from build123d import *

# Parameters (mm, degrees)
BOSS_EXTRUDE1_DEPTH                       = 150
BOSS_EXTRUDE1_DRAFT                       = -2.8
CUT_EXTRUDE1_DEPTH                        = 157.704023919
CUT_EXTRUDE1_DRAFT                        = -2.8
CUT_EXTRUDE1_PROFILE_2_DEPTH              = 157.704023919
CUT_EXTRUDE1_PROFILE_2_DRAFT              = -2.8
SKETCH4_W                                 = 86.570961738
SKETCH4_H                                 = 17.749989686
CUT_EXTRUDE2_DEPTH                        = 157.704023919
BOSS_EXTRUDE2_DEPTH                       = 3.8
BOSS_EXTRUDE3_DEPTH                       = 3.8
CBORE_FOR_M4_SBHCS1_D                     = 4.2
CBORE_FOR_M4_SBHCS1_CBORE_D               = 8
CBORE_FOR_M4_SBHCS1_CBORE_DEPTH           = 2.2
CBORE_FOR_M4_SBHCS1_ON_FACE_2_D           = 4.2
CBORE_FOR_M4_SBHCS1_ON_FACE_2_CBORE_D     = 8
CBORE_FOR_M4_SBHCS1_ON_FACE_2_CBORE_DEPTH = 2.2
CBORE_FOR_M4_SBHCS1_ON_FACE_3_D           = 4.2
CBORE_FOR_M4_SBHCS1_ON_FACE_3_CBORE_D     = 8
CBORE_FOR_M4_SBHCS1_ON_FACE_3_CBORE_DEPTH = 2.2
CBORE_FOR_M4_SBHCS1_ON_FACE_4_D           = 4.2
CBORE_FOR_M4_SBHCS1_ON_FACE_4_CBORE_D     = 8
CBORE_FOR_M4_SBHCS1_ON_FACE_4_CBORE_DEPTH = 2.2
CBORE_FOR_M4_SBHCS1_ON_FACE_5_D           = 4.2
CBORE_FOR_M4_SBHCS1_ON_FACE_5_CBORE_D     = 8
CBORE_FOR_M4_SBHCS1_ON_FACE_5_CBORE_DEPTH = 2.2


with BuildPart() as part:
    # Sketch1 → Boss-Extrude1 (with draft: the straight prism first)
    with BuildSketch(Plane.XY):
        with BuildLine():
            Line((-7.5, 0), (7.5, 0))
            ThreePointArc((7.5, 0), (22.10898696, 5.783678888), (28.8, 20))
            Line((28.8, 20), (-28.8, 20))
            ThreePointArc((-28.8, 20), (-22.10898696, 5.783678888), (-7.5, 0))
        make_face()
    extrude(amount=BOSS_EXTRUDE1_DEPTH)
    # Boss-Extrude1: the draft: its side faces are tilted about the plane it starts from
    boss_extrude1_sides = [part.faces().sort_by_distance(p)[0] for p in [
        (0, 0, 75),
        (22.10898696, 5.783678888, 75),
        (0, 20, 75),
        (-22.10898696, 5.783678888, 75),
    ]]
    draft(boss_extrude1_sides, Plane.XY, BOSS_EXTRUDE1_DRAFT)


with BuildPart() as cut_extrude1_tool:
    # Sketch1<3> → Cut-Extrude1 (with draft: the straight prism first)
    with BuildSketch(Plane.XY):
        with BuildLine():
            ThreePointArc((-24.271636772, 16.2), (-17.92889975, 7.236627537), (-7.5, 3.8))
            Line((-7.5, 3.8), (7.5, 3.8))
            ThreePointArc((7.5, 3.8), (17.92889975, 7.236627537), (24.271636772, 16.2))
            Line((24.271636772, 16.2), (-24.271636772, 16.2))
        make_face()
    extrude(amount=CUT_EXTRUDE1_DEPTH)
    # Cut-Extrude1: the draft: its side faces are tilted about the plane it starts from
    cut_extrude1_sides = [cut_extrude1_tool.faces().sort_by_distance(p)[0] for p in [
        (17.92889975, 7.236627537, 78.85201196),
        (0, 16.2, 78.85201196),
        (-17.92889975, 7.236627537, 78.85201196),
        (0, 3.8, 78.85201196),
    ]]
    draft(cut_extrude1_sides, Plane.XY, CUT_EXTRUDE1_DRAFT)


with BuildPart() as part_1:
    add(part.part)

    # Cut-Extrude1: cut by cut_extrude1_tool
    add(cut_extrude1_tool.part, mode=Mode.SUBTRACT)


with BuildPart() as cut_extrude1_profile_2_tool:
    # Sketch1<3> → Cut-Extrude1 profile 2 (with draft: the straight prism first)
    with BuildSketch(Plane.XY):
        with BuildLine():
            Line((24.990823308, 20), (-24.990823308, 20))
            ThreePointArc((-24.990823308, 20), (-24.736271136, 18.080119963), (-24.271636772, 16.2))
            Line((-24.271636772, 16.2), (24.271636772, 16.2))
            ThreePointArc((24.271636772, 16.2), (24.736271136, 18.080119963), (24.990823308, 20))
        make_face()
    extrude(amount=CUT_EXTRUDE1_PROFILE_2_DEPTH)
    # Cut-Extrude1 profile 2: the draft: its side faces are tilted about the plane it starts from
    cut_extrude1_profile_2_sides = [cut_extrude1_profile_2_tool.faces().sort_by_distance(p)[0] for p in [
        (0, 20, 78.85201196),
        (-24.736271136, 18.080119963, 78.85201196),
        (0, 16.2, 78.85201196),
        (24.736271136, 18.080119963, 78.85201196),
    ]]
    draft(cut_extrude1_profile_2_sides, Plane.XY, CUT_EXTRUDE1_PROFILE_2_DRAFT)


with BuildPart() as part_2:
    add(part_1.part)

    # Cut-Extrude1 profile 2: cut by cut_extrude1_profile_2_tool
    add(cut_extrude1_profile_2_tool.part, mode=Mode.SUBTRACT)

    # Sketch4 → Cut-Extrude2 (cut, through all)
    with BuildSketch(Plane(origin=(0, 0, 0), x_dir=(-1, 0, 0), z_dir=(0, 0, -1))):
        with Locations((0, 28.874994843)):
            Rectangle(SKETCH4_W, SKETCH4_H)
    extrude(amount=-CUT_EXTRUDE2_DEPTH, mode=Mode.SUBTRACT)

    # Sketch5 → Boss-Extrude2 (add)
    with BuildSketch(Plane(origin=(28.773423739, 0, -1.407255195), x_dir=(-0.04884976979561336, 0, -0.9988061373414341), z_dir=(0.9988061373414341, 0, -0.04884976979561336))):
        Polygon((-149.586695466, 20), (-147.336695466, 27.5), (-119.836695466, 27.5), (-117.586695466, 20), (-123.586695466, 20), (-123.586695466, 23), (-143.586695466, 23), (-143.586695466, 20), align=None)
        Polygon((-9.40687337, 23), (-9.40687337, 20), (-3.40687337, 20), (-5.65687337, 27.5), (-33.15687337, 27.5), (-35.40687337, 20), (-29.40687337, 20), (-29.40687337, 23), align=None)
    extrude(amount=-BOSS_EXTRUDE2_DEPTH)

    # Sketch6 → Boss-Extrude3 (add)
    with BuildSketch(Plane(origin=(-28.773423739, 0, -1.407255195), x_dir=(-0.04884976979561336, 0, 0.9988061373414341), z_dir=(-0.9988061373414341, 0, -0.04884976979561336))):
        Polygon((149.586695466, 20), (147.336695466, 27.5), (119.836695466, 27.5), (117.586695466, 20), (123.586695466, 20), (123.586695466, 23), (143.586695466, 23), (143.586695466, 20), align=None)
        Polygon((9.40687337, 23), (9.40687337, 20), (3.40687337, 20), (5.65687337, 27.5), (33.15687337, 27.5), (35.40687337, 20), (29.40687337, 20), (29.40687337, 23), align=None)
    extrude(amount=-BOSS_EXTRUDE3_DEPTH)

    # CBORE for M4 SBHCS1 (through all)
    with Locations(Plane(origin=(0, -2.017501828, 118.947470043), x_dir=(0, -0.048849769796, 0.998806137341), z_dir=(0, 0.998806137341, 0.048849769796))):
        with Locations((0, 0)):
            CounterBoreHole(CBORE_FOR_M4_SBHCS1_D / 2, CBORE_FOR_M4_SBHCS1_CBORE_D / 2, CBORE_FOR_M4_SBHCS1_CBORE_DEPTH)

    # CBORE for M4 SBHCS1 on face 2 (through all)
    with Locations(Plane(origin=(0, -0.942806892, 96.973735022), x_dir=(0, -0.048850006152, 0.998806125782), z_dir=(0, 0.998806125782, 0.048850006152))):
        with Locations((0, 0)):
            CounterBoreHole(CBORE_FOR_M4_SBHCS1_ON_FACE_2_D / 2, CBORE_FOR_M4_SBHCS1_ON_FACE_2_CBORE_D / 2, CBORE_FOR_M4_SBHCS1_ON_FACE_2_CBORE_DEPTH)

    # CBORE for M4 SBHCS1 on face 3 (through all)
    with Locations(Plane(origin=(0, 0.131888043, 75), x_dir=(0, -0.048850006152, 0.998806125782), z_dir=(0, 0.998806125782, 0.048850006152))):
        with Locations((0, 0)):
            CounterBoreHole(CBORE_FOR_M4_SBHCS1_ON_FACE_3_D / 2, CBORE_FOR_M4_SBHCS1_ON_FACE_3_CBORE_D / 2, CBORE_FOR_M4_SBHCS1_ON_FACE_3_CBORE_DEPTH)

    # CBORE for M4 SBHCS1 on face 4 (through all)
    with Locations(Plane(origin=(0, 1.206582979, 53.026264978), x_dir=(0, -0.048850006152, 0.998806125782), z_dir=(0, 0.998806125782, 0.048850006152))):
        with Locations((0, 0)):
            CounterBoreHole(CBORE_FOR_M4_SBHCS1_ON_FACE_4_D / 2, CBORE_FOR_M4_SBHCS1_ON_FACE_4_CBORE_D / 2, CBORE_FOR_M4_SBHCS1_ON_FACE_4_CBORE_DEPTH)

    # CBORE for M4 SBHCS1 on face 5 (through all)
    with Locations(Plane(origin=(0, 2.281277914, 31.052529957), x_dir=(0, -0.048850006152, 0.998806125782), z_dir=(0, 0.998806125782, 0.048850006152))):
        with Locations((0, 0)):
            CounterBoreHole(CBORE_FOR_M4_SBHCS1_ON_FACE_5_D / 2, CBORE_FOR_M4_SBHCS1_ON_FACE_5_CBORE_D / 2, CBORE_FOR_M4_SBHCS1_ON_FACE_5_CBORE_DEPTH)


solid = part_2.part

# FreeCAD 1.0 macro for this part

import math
import FreeCAD as App
import Part
import Sketcher

V = App.Vector


def faces_at(feature, points):
    """Names of the faces that lie closest to the given points."""
    faces = feature.Shape.Faces
    near = lambda p: min(range(len(faces)), key=lambda i: faces[i].distToShape(Part.Vertex(*p))[0])
    return sorted({f"Face{near(p) + 1}" for p in points})

doc = App.newDocument("Part")
body = doc.addObject("PartDesign::Body", "Body")

# Sketch on XY plane
sketch1 = body.newObject("Sketcher::SketchObject", "Sketch")
sketch1.AttachmentSupport = (doc.getObject("XY_Plane"), [""])
sketch1.MapMode = "FlatFace"
sketch1.addGeometry([
    Part.LineSegment(V(-7.5, 0, 0), V(7.5, 0, 0)),
    Part.ArcOfCircle(Part.Circle(V(7.5, 21.34225, 0), V(0, 0, 1), 21.34225), math.radians(-90), math.radians(-3.605808)),
    Part.LineSegment(V(28.8, 20, 0), V(-28.8, 20, 0)),
    Part.ArcOfCircle(Part.Circle(V(-7.5, 21.34225, 0), V(0, 0, 1), 21.34225), math.radians(-176.394192), math.radians(-90)),
], False)
sketch1.addConstraint([
    Sketcher.Constraint("Tangent", 0, 2, 1, 1),
    Sketcher.Constraint("Coincident", 1, 2, 2, 1),
    Sketcher.Constraint("Coincident", 2, 2, 3, 1),
    Sketcher.Constraint("Tangent", 3, 2, 0, 1),
    Sketcher.Constraint("Horizontal", 0),
    Sketcher.Constraint("Horizontal", 2),
    Sketcher.Constraint("Equal", 1, 3),
    Sketcher.Constraint("Symmetric", 0, 2, 3, 2, -1, 1),
    Sketcher.Constraint("DistanceX", 0, 1, 0, 2, 15.0),
    Sketcher.Constraint("DistanceX", 2, 2, 2, 1, 57.6),
    Sketcher.Constraint("DistanceY", -1, 1, 1, 2, 20.0),
])
pad1 = body.newObject("PartDesign::Pad", "Pad")
pad1.Profile = sketch1
pad1.Length = 150
doc.recompute()

draft = body.newObject("PartDesign::Draft", "Draft")
draft.Base = (pad1, faces_at(pad1, [
    (0, 0, 75),
    (22.109, 5.784, 75),
    (0, 20, 75),
    (-22.109, 5.784, 75),
]))
draft.NeutralPlane = (doc.getObject("XY_Plane"), [""])
draft.Angle = 2.8
draft.Reversed = True
body2 = doc.addObject("PartDesign::Body", "Body001")

# Sketch on XY plane
sketch2 = body2.newObject("Sketcher::SketchObject", "Sketch001")
sketch2.AttachmentSupport = (doc.getObject("XY_Plane001"), [""])
sketch2.MapMode = "FlatFace"
sketch2.addGeometry([
    Part.ArcOfCircle(Part.Circle(V(-7.5, 21.34225, 0), V(0, 0, 1), 17.54225), math.radians(-162.954254), math.radians(-90)),
    Part.LineSegment(V(-7.5, 3.8, 0), V(7.5, 3.8, 0)),
    Part.ArcOfCircle(Part.Circle(V(7.5, 21.34225, 0), V(0, 0, 1), 17.54225), math.radians(-90), math.radians(-17.045746)),
    Part.LineSegment(V(24.271637, 16.2, 0), V(-24.271637, 16.2, 0)),
], False)
sketch2.addConstraint([
    Sketcher.Constraint("Tangent", 0, 2, 1, 1),
    Sketcher.Constraint("Tangent", 1, 2, 2, 1),
    Sketcher.Constraint("Coincident", 2, 2, 3, 1),
    Sketcher.Constraint("Coincident", 3, 2, 0, 1),
    Sketcher.Constraint("Horizontal", 1),
    Sketcher.Constraint("Horizontal", 3),
    Sketcher.Constraint("Equal", 0, 2),
    Sketcher.Constraint("DistanceX", 1, 1, 1, 2, 15.0),
    Sketcher.Constraint("DistanceX", 0, 3, -1, 1, 7.5),
    Sketcher.Constraint("DistanceY", -1, 1, 0, 2, 3.8),
    Sketcher.Constraint("DistanceY", -1, 1, 2, 2, 16.2),
    Sketcher.Constraint("Radius", 0, 17.54225),
])
pad2 = body2.newObject("PartDesign::Pad", "Pad001")
pad2.Profile = sketch2
pad2.Length = 157.704024
doc.recompute()

draft2 = body2.newObject("PartDesign::Draft", "Draft001")
draft2.Base = (pad2, faces_at(pad2, [
    (17.929, 7.237, 78.852),
    (0, 16.2, 78.852),
    (-17.929, 7.237, 78.852),
    (0, 3.8, 78.852),
]))
draft2.NeutralPlane = (doc.getObject("XY_Plane001"), [""])
draft2.Angle = 2.8
draft2.Reversed = True
doc.recompute()

boolean = body.newObject("PartDesign::Boolean", "Boolean")
boolean.Type = "Cut"
boolean.addObjects([body2])
body3 = doc.addObject("PartDesign::Body", "Body002")

# Sketch on XY plane
sketch3 = body3.newObject("Sketcher::SketchObject", "Sketch002")
sketch3.AttachmentSupport = (doc.getObject("XY_Plane002"), [""])
sketch3.MapMode = "FlatFace"
sketch3.addGeometry([
    Part.LineSegment(V(24.990823, 20, 0), V(-24.990823, 20, 0)),
    Part.ArcOfCircle(Part.Circle(V(-7.5, 21.34225, 0), V(0, 0, 1), 17.54225), math.radians(-175.611709), math.radians(-162.954254)),
    Part.LineSegment(V(-24.271637, 16.2, 0), V(24.271637, 16.2, 0)),
    Part.ArcOfCircle(Part.Circle(V(7.5, 21.34225, 0), V(0, 0, 1), 17.54225), math.radians(-17.045746), math.radians(-4.388291)),
], False)
sketch3.addConstraint([
    Sketcher.Constraint("Coincident", 0, 2, 1, 1),
    Sketcher.Constraint("Coincident", 1, 2, 2, 1),
    Sketcher.Constraint("Coincident", 2, 2, 3, 1),
    Sketcher.Constraint("Coincident", 3, 2, 0, 1),
    Sketcher.Constraint("Horizontal", 0),
    Sketcher.Constraint("Horizontal", 2),
    Sketcher.Constraint("Equal", 1, 3),
    Sketcher.Constraint("Symmetric", 1, 3, 3, 3, -2),
    Sketcher.Constraint("DistanceY", -1, 1, 0, 2, 20.0),
    Sketcher.Constraint("DistanceX", 1, 3, 3, 3, 15.0),
    Sketcher.Constraint("DistanceY", -1, 1, 1, 2, 16.2),
    Sketcher.Constraint("Radius", 1, 17.54225),
    Sketcher.Constraint("DistanceX", 0, 2, 0, 1, 49.981647),
])
pad3 = body3.newObject("PartDesign::Pad", "Pad002")
pad3.Profile = sketch3
pad3.Length = 157.704024
doc.recompute()

draft3 = body3.newObject("PartDesign::Draft", "Draft002")
draft3.Base = (pad3, faces_at(pad3, [
    (0, 20, 78.852),
    (-24.736, 18.08, 78.852),
    (0, 16.2, 78.852),
    (24.736, 18.08, 78.852),
]))
draft3.NeutralPlane = (doc.getObject("XY_Plane002"), [""])
draft3.Angle = 2.8
draft3.Reversed = True
doc.recompute()

boolean2 = body.newObject("PartDesign::Boolean", "Boolean001")
boolean2.Type = "Cut"
boolean2.addObjects([body3])

# Sketch on XY plane
sketch4 = body.newObject("Sketcher::SketchObject", "Sketch003")
sketch4.AttachmentSupport = (doc.getObject("XY_Plane"), [""])
sketch4.MapMode = "FlatFace"
sketch4.addGeometry([
    Part.LineSegment(V(43.285481, 37.74999, 0), V(43.285481, 20, 0)),
    Part.LineSegment(V(43.285481, 20, 0), V(-43.285481, 20, 0)),
    Part.LineSegment(V(-43.285481, 20, 0), V(-43.285481, 37.74999, 0)),
    Part.LineSegment(V(-43.285481, 37.74999, 0), V(43.285481, 37.74999, 0)),
], False)
sketch4.addConstraint([
    Sketcher.Constraint("Coincident", 0, 2, 1, 1),
    Sketcher.Constraint("Coincident", 1, 2, 2, 1),
    Sketcher.Constraint("Coincident", 2, 2, 3, 1),
    Sketcher.Constraint("Coincident", 3, 2, 0, 1),
    Sketcher.Constraint("Vertical", 0),
    Sketcher.Constraint("Horizontal", 1),
    Sketcher.Constraint("Vertical", 2),
    Sketcher.Constraint("Horizontal", 3),
    Sketcher.Constraint("DistanceY", -1, 1, 0, 2, 20.0),
    Sketcher.Constraint("DistanceX", 1, 2, 1, 1, 86.570962),
    Sketcher.Constraint("DistanceY", 0, 2, 0, 1, 17.74999),
    Sketcher.Constraint("DistanceX", -1, 1, 0, 2, 43.285481),
])
pocket1 = body.newObject("PartDesign::Pocket", "Pocket")
pocket1.Profile = sketch4
pocket1.Type = "ThroughAll"
pocket1.Reversed = True

# Sketch on an angled plane
sketch5 = body.newObject("Sketcher::SketchObject", "Sketch004")
sketch5.Placement = App.Placement(V(28.773424, 0, -1.407255), App.Rotation(V(-0.04884977, 0, -0.998806137), V(0, 0.999999999, 0), V(0.998806137, 0, -0.04884977), "ZXY"))
sketch5.addGeometry([
    Part.LineSegment(V(-147.336695, 27.5, 0), V(-149.586695, 20, 0)),  # 0
    Part.LineSegment(V(-149.586695, 20, 0), V(-143.586695, 20, 0)),  # 1
    Part.LineSegment(V(-143.586695, 20, 0), V(-143.586695, 23, 0)),  # 2
    Part.LineSegment(V(-143.586695, 23, 0), V(-123.586695, 23, 0)),  # 3
    Part.LineSegment(V(-123.586695, 23, 0), V(-123.586695, 20, 0)),  # 4
    Part.LineSegment(V(-123.586695, 20, 0), V(-117.586695, 20, 0)),  # 5
    Part.LineSegment(V(-117.586695, 20, 0), V(-119.836695, 27.5, 0)),  # 6
    Part.LineSegment(V(-119.836695, 27.5, 0), V(-147.336695, 27.5, 0)),  # 7
    Part.LineSegment(V(-9.406873, 23, 0), V(-9.406873, 20, 0)),  # 8
    Part.LineSegment(V(-9.406873, 20, 0), V(-3.406873, 20, 0)),  # 9
    Part.LineSegment(V(-3.406873, 20, 0), V(-5.656873, 27.5, 0)),  # 10
    Part.LineSegment(V(-5.656873, 27.5, 0), V(-33.156873, 27.5, 0)),  # 11
    Part.LineSegment(V(-33.156873, 27.5, 0), V(-35.406873, 20, 0)),  # 12
    Part.LineSegment(V(-35.406873, 20, 0), V(-29.406873, 20, 0)),  # 13
    Part.LineSegment(V(-29.406873, 20, 0), V(-29.406873, 23, 0)),  # 14
    Part.LineSegment(V(-29.406873, 23, 0), V(-9.406873, 23, 0)),  # 15
], False)
sketch5.addConstraint([
    Sketcher.Constraint("Coincident", 0, 2, 1, 1),
    Sketcher.Constraint("Coincident", 1, 2, 2, 1),
    Sketcher.Constraint("Coincident", 2, 2, 3, 1),
    Sketcher.Constraint("Coincident", 3, 2, 4, 1),
    Sketcher.Constraint("Coincident", 4, 2, 5, 1),
    Sketcher.Constraint("Coincident", 5, 2, 6, 1),
    Sketcher.Constraint("Coincident", 6, 2, 7, 1),
    Sketcher.Constraint("Coincident", 7, 2, 0, 1),
    Sketcher.Constraint("Coincident", 8, 2, 9, 1),
    Sketcher.Constraint("Coincident", 9, 2, 10, 1),
    Sketcher.Constraint("Coincident", 10, 2, 11, 1),
    Sketcher.Constraint("Coincident", 11, 2, 12, 1),
    Sketcher.Constraint("Coincident", 12, 2, 13, 1),
    Sketcher.Constraint("Coincident", 13, 2, 14, 1),
    Sketcher.Constraint("Coincident", 14, 2, 15, 1),
    Sketcher.Constraint("Coincident", 15, 2, 8, 1),
    Sketcher.Constraint("Horizontal", 1),
    Sketcher.Constraint("Vertical", 2),
    Sketcher.Constraint("Horizontal", 3),
    Sketcher.Constraint("Vertical", 4),
    Sketcher.Constraint("Horizontal", 5),
    Sketcher.Constraint("Horizontal", 7),
    Sketcher.Constraint("Vertical", 8),
    Sketcher.Constraint("Horizontal", 9),
    Sketcher.Constraint("Horizontal", 11),
    Sketcher.Constraint("Horizontal", 13),
    Sketcher.Constraint("Vertical", 14),
    Sketcher.Constraint("Horizontal", 15),
    Sketcher.Constraint("Parallel", 6, 10),
    Sketcher.Constraint("Parallel", 0, 12),
    Sketcher.Constraint("Horizontal", 1, 2, 4, 2),
    Sketcher.Constraint("Horizontal", 5, 2, 8, 2),
    Sketcher.Constraint("Horizontal", 7, 2, 10, 2),
    Sketcher.Constraint("Horizontal", 9, 2, 12, 2),
    Sketcher.Constraint("Horizontal", 3, 2, 14, 2),
    Sketcher.Constraint("Equal", 1, 5),
    Sketcher.Constraint("Equal", 5, 9),
    Sketcher.Constraint("Equal", 7, 11),
    Sketcher.Constraint("Equal", 9, 13),
    Sketcher.Constraint("Equal", 0, 6),
    Sketcher.Constraint("DistanceX", 1, 1, 1, 2, 6.0),
    Sketcher.Constraint("DistanceX", 3, 1, 3, 2, 20.0),
    Sketcher.Constraint("DistanceY", 2, 1, 2, 2, 3.0),
    Sketcher.Constraint("DistanceX", 7, 2, 7, 1, 27.5),
    Sketcher.Constraint("DistanceY", -1, 1, 0, 2, 20.0),
    Sketcher.Constraint("DistanceY", -1, 1, 6, 2, 27.5),
    Sketcher.Constraint("DistanceX", 0, 2, -1, 1, 149.586695),
    Sketcher.Constraint("DistanceX", 8, 2, -1, 1, 9.406873),
])
pad4 = body.newObject("PartDesign::Pad", "Pad003")
pad4.Profile = sketch5
pad4.Length = 3.8
pad4.Reversed = True

# Sketch on an angled plane
sketch6 = body.newObject("Sketcher::SketchObject", "Sketch005")
sketch6.Placement = App.Placement(V(-28.773424, 0, -1.407255), App.Rotation(V(-0.04884977, 0, 0.998806137), V(0, 0.999999999, 0), V(-0.998806137, 0, -0.04884977), "ZXY"))
sketch6.addGeometry([
    Part.LineSegment(V(149.586695, 20, 0), V(147.336695, 27.5, 0)),  # 0
    Part.LineSegment(V(147.336695, 27.5, 0), V(119.836695, 27.5, 0)),  # 1
    Part.LineSegment(V(119.836695, 27.5, 0), V(117.586695, 20, 0)),  # 2
    Part.LineSegment(V(117.586695, 20, 0), V(123.586695, 20, 0)),  # 3
    Part.LineSegment(V(123.586695, 20, 0), V(123.586695, 23, 0)),  # 4
    Part.LineSegment(V(123.586695, 23, 0), V(143.586695, 23, 0)),  # 5
    Part.LineSegment(V(143.586695, 23, 0), V(143.586695, 20, 0)),  # 6
    Part.LineSegment(V(143.586695, 20, 0), V(149.586695, 20, 0)),  # 7
    Part.LineSegment(V(9.406873, 20, 0), V(9.406873, 23, 0)),  # 8
    Part.LineSegment(V(9.406873, 23, 0), V(29.406873, 23, 0)),  # 9
    Part.LineSegment(V(29.406873, 23, 0), V(29.406873, 20, 0)),  # 10
    Part.LineSegment(V(29.406873, 20, 0), V(35.406873, 20, 0)),  # 11
    Part.LineSegment(V(35.406873, 20, 0), V(33.156873, 27.5, 0)),  # 12
    Part.LineSegment(V(33.156873, 27.5, 0), V(5.656873, 27.5, 0)),  # 13
    Part.LineSegment(V(5.656873, 27.5, 0), V(3.406873, 20, 0)),  # 14
    Part.LineSegment(V(3.406873, 20, 0), V(9.406873, 20, 0)),  # 15
], False)
sketch6.addConstraint([
    Sketcher.Constraint("Coincident", 0, 2, 1, 1),
    Sketcher.Constraint("Coincident", 1, 2, 2, 1),
    Sketcher.Constraint("Coincident", 2, 2, 3, 1),
    Sketcher.Constraint("Coincident", 3, 2, 4, 1),
    Sketcher.Constraint("Coincident", 4, 2, 5, 1),
    Sketcher.Constraint("Coincident", 5, 2, 6, 1),
    Sketcher.Constraint("Coincident", 6, 2, 7, 1),
    Sketcher.Constraint("Coincident", 7, 2, 0, 1),
    Sketcher.Constraint("Coincident", 8, 2, 9, 1),
    Sketcher.Constraint("Coincident", 9, 2, 10, 1),
    Sketcher.Constraint("Coincident", 10, 2, 11, 1),
    Sketcher.Constraint("Coincident", 11, 2, 12, 1),
    Sketcher.Constraint("Coincident", 12, 2, 13, 1),
    Sketcher.Constraint("Coincident", 13, 2, 14, 1),
    Sketcher.Constraint("Coincident", 14, 2, 15, 1),
    Sketcher.Constraint("Coincident", 15, 2, 8, 1),
    Sketcher.Constraint("Horizontal", 1),
    Sketcher.Constraint("Horizontal", 3),
    Sketcher.Constraint("Vertical", 4),
    Sketcher.Constraint("Horizontal", 5),
    Sketcher.Constraint("Vertical", 6),
    Sketcher.Constraint("Horizontal", 7),
    Sketcher.Constraint("Vertical", 8),
    Sketcher.Constraint("Horizontal", 9),
    Sketcher.Constraint("Vertical", 10),
    Sketcher.Constraint("Horizontal", 11),
    Sketcher.Constraint("Horizontal", 13),
    Sketcher.Constraint("Horizontal", 15),
    Sketcher.Constraint("Parallel", 0, 12),
    Sketcher.Constraint("Parallel", 2, 14),
    Sketcher.Constraint("Horizontal", 3, 2, 6, 2),
    Sketcher.Constraint("Horizontal", 5, 2, 8, 2),
    Sketcher.Constraint("Horizontal", 7, 2, 10, 2),
    Sketcher.Constraint("Horizontal", 1, 2, 12, 2),
    Sketcher.Constraint("Horizontal", 11, 2, 14, 2),
    Sketcher.Constraint("Equal", 3, 7),
    Sketcher.Constraint("Equal", 5, 9),
    Sketcher.Constraint("Equal", 7, 11),
    Sketcher.Constraint("Equal", 1, 13),
    Sketcher.Constraint("Equal", 0, 2),
    Sketcher.Constraint("DistanceX", 3, 1, 3, 2, 6.0),
    Sketcher.Constraint("DistanceX", 5, 1, 5, 2, 20.0),
    Sketcher.Constraint("DistanceY", 4, 1, 4, 2, 3.0),
    Sketcher.Constraint("DistanceX", 1, 2, 1, 1, 27.5),
    Sketcher.Constraint("DistanceY", -1, 1, 2, 2, 20.0),
    Sketcher.Constraint("DistanceY", -1, 1, 0, 2, 27.5),
    Sketcher.Constraint("DistanceX", -1, 1, 0, 2, 147.336695),
    Sketcher.Constraint("DistanceX", -1, 1, 8, 2, 9.406873),
])
pad5 = body.newObject("PartDesign::Pad", "Pad004")
pad5.Profile = sketch6
pad5.Length = 3.8
pad5.Reversed = True

# Sketch on an angled plane
sketch7 = body.newObject("Sketcher::SketchObject", "Sketch006")
sketch7.Placement = App.Placement(V(0, 3.790932, 0.185408), App.Rotation(V(0, -0.04884977, 0.998806137), V(0.999999999, 0, 0), V(0, 0.998806137, 0.04884977), "ZXY"))
sketch7.addGeometry(Part.Circle(V(118.904018, 0, 0), V(0, 0, 1), 2.1), False)
sketch7.addConstraint([
    Sketcher.Constraint("PointOnObject", 0, 3, -1),
    Sketcher.Constraint("Diameter", 0, 4.2),
    Sketcher.Constraint("DistanceX", -1, 1, 0, 3, 118.904018),
])
doc.recompute()
hole = body.newObject("PartDesign::Hole", "Hole")
hole.Profile = sketch7
hole.ThreadType = "None"
hole.Diameter = 4.2
hole.DepthType = "ThroughAll"
hole.HoleCutType = "Counterbore"
hole.HoleCutDiameter = 8
hole.HoleCutDepth = 2.2

# Sketch on an angled plane
sketch8 = body.newObject("Sketcher::SketchObject", "Sketch007")
sketch8.Placement = App.Placement(V(0, 3.790955, 0.18541), App.Rotation(V(0, -0.048850006, 0.998806126), V(1, 0, 0), V(0, 0.998806126, 0.048850006), "ZXY"))
sketch8.addGeometry(Part.Circle(V(96.904017, 0, 0), V(0, 0, 1), 2.1), False)
sketch8.addConstraint([
    Sketcher.Constraint("PointOnObject", 0, 3, -1),
    Sketcher.Constraint("Diameter", 0, 4.2),
    Sketcher.Constraint("DistanceX", -1, 1, 0, 3, 96.904017),
])
doc.recompute()
hole2 = body.newObject("PartDesign::Hole", "Hole001")
hole2.Profile = sketch8
hole2.ThreadType = "None"
hole2.Diameter = 4.2
hole2.DepthType = "ThroughAll"
hole2.HoleCutType = "Counterbore"
hole2.HoleCutDiameter = 8
hole2.HoleCutDepth = 2.2

# Sketch on an angled plane
sketch9 = body.newObject("Sketcher::SketchObject", "Sketch008")
sketch9.Placement = App.Placement(V(0, 3.79095, 0.185409), App.Rotation(V(0, -0.048850006, 0.998806126), V(1, 0, 0), V(0, 0.998806126, 0.048850006), "ZXY"))
sketch9.addGeometry(Part.Circle(V(74.904017, 0, 0), V(0, 0, 1), 2.1), False)
sketch9.addConstraint([
    Sketcher.Constraint("PointOnObject", 0, 3, -1),
    Sketcher.Constraint("Diameter", 0, 4.2),
    Sketcher.Constraint("DistanceX", -1, 1, 0, 3, 74.904017),
])
doc.recompute()
hole3 = body.newObject("PartDesign::Hole", "Hole002")
hole3.Profile = sketch9
hole3.ThreadType = "None"
hole3.Diameter = 4.2
hole3.DepthType = "ThroughAll"
hole3.HoleCutType = "Counterbore"
hole3.HoleCutDiameter = 8
hole3.HoleCutDepth = 2.2

# Sketch on an angled plane
sketch10 = body.newObject("Sketcher::SketchObject", "Sketch009")
sketch10.Placement = App.Placement(V(0, 3.790945, 0.185409), App.Rotation(V(0, -0.048850006, 0.998806126), V(1, 0, 0), V(0, 0.998806126, 0.048850006), "ZXY"))
sketch10.addGeometry(Part.Circle(V(52.904017, 0, 0), V(0, 0, 1), 2.1), False)
sketch10.addConstraint([
    Sketcher.Constraint("PointOnObject", 0, 3, -1),
    Sketcher.Constraint("Diameter", 0, 4.2),
    Sketcher.Constraint("DistanceX", -1, 1, 0, 3, 52.904017),
])
doc.recompute()
hole4 = body.newObject("PartDesign::Hole", "Hole003")
hole4.Profile = sketch10
hole4.ThreadType = "None"
hole4.Diameter = 4.2
hole4.DepthType = "ThroughAll"
hole4.HoleCutType = "Counterbore"
hole4.HoleCutDiameter = 8
hole4.HoleCutDepth = 2.2

# Sketch on an angled plane
sketch11 = body.newObject("Sketcher::SketchObject", "Sketch010")
sketch11.Placement = App.Placement(V(0, 3.790939, 0.185409), App.Rotation(V(0, -0.048850006, 0.998806126), V(1, 0, 0), V(0, 0.998806126, 0.048850006), "ZXY"))
sketch11.addGeometry(Part.Circle(V(30.904017, 0, 0), V(0, 0, 1), 2.1), False)
sketch11.addConstraint([
    Sketcher.Constraint("PointOnObject", 0, 3, -1),
    Sketcher.Constraint("Diameter", 0, 4.2),
    Sketcher.Constraint("DistanceX", -1, 1, 0, 3, 30.904017),
])
doc.recompute()
hole5 = body.newObject("PartDesign::Hole", "Hole004")
hole5.Profile = sketch11
hole5.ThreadType = "None"
hole5.Diameter = 4.2
hole5.DepthType = "ThroughAll"
hole5.HoleCutType = "Counterbore"
hole5.HoleCutDiameter = 8
hole5.HoleCutDepth = 2.2

doc.recompute()
